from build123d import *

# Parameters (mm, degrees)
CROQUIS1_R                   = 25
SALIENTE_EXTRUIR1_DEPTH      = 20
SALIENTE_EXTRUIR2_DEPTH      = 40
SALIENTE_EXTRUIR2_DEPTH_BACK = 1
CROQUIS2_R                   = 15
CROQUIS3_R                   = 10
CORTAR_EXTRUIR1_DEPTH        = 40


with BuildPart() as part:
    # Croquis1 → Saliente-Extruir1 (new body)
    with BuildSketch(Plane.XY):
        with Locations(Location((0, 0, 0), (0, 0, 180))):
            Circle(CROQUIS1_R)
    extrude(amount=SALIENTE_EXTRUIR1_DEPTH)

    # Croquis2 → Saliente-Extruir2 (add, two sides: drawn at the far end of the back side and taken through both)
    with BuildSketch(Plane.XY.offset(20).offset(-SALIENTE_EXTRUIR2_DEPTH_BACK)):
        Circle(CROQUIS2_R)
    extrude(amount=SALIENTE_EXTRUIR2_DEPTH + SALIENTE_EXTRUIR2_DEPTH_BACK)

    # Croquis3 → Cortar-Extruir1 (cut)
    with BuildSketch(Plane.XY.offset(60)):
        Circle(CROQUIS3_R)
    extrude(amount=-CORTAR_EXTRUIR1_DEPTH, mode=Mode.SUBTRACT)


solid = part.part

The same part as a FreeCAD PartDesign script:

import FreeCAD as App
import Part
import Sketcher
from FreeCAD import Vector
Q = App.Units.Quantity

doc = App.newDocument("Part")
body = doc.addObject("PartDesign::Body", "Body")

sketch1 = body.newObject("Sketcher::SketchObject", "Sketch")
sketch1.AttachmentSupport = (doc.getObject("XY_Plane"), [""])
sketch1.MapMode = "FlatFace"
sketch1.addGeometry(Part.Circle(Vector(0, 0, 0), Vector(0, 0, 1), 25), False)
sketch1.addConstraint([
    Sketcher.Constraint("Coincident", 0, 3, -1, 1),
    Sketcher.Constraint("Diameter", 0, Q("50 mm")),
])
pad1 = body.newObject("PartDesign::Pad", "Pad")
pad1.Profile = sketch1
pad1.Length = 20

sketch2 = body.newObject("Sketcher::SketchObject", "Sketch001")
sketch2.AttachmentSupport = (doc.getObject("XY_Plane"), [""])
sketch2.MapMode = "FlatFace"
sketch2.AttachmentOffset = App.Placement(Vector(0, 0, 20), App.Rotation())
sketch2.addGeometry(Part.Circle(Vector(0, 0, 0), Vector(0, 0, 1), 15), False)
sketch2.addConstraint([
    Sketcher.Constraint("Coincident", 0, 3, -1, 1),
    Sketcher.Constraint("Diameter", 0, Q("30 mm")),
])
pad2 = body.newObject("PartDesign::Pad", "Pad001")
pad2.Profile = sketch2
pad2.Type = "TwoLengths"
pad2.Length = 40
pad2.Length2 = 1

sketch3 = body.newObject("Sketcher::SketchObject", "Sketch002")
sketch3.AttachmentSupport = (doc.getObject("XY_Plane"), [""])
sketch3.MapMode = "FlatFace"
sketch3.AttachmentOffset = App.Placement(Vector(0, 0, 60), App.Rotation())
sketch3.addGeometry(Part.Circle(Vector(0, 0, 0), Vector(0, 0, 1), 10), False)
sketch3.addConstraint([
    Sketcher.Constraint("Coincident", 0, 3, -1, 1),
    Sketcher.Constraint("Diameter", 0, Q("20 mm")),
])
pocket1 = body.newObject("PartDesign::Pocket", "Pocket")
pocket1.Profile = sketch3
pocket1.Length = 40

doc.recompute()
